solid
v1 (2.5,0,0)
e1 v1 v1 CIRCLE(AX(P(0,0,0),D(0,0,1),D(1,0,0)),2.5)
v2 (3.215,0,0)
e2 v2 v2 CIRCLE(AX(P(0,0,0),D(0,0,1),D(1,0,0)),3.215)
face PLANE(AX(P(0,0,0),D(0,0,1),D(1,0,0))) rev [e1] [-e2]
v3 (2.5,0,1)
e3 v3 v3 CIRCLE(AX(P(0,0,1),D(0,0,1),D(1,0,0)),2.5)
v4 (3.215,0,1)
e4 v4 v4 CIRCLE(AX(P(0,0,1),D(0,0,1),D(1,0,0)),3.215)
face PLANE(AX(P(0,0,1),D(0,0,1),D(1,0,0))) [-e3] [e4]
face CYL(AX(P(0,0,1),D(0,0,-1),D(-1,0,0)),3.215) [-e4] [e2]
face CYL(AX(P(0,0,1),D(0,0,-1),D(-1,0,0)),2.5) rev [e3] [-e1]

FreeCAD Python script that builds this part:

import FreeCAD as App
import Part
import Sketcher

V = App.Vector
Q = App.Units.Quantity

doc = App.newDocument("Part")
body = doc.addObject("PartDesign::Body", "Body")

sketch1 = doc.addObject("Sketcher::SketchObject", "Sketch")
body.addObject(sketch1)
sketch1.AttachmentSupport = (doc.XY_Plane, [""])
sketch1.MapMode = "FlatFace"
sketch1.addGeometry([
    Part.Circle(V(0, 0, 0), V(0, 0, 1), 3.2),
    Part.Circle(V(0, 0, 0), V(0, 0, 1), 2.5),
], False)
sketch1.addConstraint([
    Sketcher.Constraint("Coincident", 0, 3, -1, 1),
    Sketcher.Constraint("Coincident", 1, 3, -1, 1),
    Sketcher.Constraint("Diameter", 1, Q("5 mm")),
    Sketcher.Constraint("Diameter", 0, Q("6.43 mm")),
])
pad1 = doc.addObject("PartDesign::Pad", "Pad")
body.addObject(pad1)
pad1.Profile = sketch1
pad1.Length = 1

doc.recompute()
